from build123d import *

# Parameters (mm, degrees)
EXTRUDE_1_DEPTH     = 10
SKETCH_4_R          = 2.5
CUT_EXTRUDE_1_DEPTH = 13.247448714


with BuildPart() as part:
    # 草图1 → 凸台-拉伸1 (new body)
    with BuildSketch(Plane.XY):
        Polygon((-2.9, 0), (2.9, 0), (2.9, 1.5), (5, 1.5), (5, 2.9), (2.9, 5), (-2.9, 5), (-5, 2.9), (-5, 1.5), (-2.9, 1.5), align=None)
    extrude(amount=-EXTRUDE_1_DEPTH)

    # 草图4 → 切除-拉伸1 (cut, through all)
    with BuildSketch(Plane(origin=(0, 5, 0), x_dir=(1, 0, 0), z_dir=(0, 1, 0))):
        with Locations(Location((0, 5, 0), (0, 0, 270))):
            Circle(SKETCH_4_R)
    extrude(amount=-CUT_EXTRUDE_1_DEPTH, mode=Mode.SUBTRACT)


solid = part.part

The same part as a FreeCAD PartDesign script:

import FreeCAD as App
import Part
import Sketcher
Q = App.Units.Quantity


def add_polygon(sketch, points):
    """Adds a closed chain of lines whose ends are joined by coincident constraints."""
    first, n = sketch.GeometryCount, len(points)
    for a, b in zip(points, points[1:] + points[:1]):
        sketch.addGeometry(Part.LineSegment(App.Vector(*a, 0), App.Vector(*b, 0)), False)
    for i in range(n):
        sketch.addConstraint(Sketcher.Constraint("Coincident", first + i, 2, first + (i + 1) % n, 1))

doc = App.newDocument("Part")
body = doc.addObject("PartDesign::Body", "Body")

sketch1 = body.newObject("Sketcher::SketchObject", "Sketch")
sketch1.AttachmentSupport = (doc.getObject("XY_Plane"), [""])
sketch1.MapMode = "FlatFace"
add_polygon(sketch1, [(-2.9, 0), (2.9, 0), (2.9, 1.5), (5, 1.5), (5, 2.9), (2.9, 5), (-2.9, 5), (-5, 2.9), (-5, 1.5), (-2.9, 1.5)])
sketch1.addConstraint(Sketcher.Constraint("Horizontal", 0))
sketch1.addConstraint(Sketcher.Constraint("Vertical", 1))
sketch1.addConstraint(Sketcher.Constraint("Horizontal", 2))
sketch1.addConstraint(Sketcher.Constraint("Vertical", 3))
sketch1.addConstraint(Sketcher.Constraint("Horizontal", 5))
sketch1.addConstraint(Sketcher.Constraint("Vertical", 7))
sketch1.addConstraint(Sketcher.Constraint("Horizontal", 8))
sketch1.addConstraint(Sketcher.Constraint("Vertical", 9))
sketch1.addConstraint(Sketcher.Constraint("Symmetric", 0, 2, 9, 2, -1, 1))
sketch1.addConstraint(Sketcher.Constraint("Symmetric", 3, 2, 6, 2, -2))
sketch1.addConstraint(Sketcher.Constraint("Perpendicular", 4, 6))
sketch1.addConstraint(Sketcher.Constraint("Horizontal", 2, 2, 7, 2))
sketch1.addConstraint(Sketcher.Constraint("Vertical", 1, 2, 4, 2))
sketch1.addConstraint(Sketcher.Constraint("Vertical", 5, 2, 8, 2))
sketch1.addConstraint(Sketcher.Constraint("DistanceX", 0, 1, 0, 2, Q("5.8 mm")))
sketch1.addConstraint(Sketcher.Constraint("DistanceX", 2, 1, 2, 2, Q("2.1 mm")))
sketch1.addConstraint(Sketcher.Constraint("DistanceY", 1, 1, 1, 2, Q("1.5 mm")))
sketch1.addConstraint(Sketcher.Constraint("DistanceY", 3, 1, 3, 2, Q("1.4 mm")))
pad1 = body.newObject("PartDesign::Pad", "Pad")
pad1.Profile = sketch1
pad1.Length = 10
pad1.Reversed = True

sketch2 = body.newObject("Sketcher::SketchObject", "Sketch001")
sketch2.AttachmentSupport = (doc.getObject("XZ_Plane"), [""])
sketch2.MapMode = "FlatFace"
sketch2.AttachmentOffset = App.Placement(App.Vector(0, 0, -5), App.Rotation())
sketch2.addGeometry(Part.Circle(App.Vector(0, -5, 0), App.Vector(0, 0, 1), 2.5), False)
sketch2.addConstraint(Sketcher.Constraint("PointOnObject", 0, 3, -2))
sketch2.addConstraint(Sketcher.Constraint("Diameter", 0, Q("5 mm")))
sketch2.addConstraint(Sketcher.Constraint("DistanceY", 0, 3, -1, 1, Q("5 mm")))
pocket1 = body.newObject("PartDesign::Pocket", "Pocket")
pocket1.Profile = sketch2
pocket1.Type = "ThroughAll"
pocket1.Reversed = True

doc.recompute()
